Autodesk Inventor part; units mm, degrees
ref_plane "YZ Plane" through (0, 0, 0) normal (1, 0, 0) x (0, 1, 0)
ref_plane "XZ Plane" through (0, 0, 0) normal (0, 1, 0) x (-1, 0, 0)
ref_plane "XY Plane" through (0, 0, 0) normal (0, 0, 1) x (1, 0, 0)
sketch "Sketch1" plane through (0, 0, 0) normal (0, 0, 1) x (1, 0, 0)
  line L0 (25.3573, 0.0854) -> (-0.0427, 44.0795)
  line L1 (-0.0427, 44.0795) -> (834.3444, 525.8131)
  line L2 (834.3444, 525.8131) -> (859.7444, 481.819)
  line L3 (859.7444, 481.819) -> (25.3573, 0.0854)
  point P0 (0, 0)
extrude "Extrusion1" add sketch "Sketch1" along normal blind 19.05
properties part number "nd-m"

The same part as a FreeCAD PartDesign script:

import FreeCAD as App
import Part
import Sketcher
Q = App.Units.Quantity

doc = App.newDocument("Part")
params = doc.addObject("Spreadsheet::Sheet", "Params")
for row, (alias, value) in enumerate([
    ("sketch1_length", "2 in"),
    ("pad1_length", "0.75 in"),
], start=1):
    params.set(f"A{row}", alias)
    params.set(f"B{row}", "=" + value)
    params.setAlias(f"B{row}", alias)

body = doc.addObject("PartDesign::Body", "Body")

# Sketch on XY plane
sketch1 = body.newObject("Sketcher::SketchObject", "Sketch")
sketch1.AttachmentSupport = (doc.getObject("XY_Plane"), [""])
sketch1.MapMode = "FlatFace"
sketch1.addGeometry(Part.LineSegment(App.Vector(-0.0427, 44.0795, 0), App.Vector(25.3573, 0.0854, 0)), False)
sketch1.addGeometry(Part.LineSegment(App.Vector(25.3573, 0.0854, 0), App.Vector(859.7444, 481.819, 0)), False)
sketch1.addGeometry(Part.LineSegment(App.Vector(859.7444, 481.819, 0), App.Vector(834.3444, 525.8131, 0)), False)
sketch1.addGeometry(Part.LineSegment(App.Vector(834.3444, 525.8131, 0), App.Vector(-0.0427, 44.0795, 0)), False)
sketch1.addConstraint(Sketcher.Constraint("Coincident", 0, 2, 1, 1))
sketch1.addConstraint(Sketcher.Constraint("Coincident", 1, 2, 2, 1))
sketch1.addConstraint(Sketcher.Constraint("Coincident", 2, 2, 3, 1))
sketch1.addConstraint(Sketcher.Constraint("Coincident", 3, 2, 0, 1))
sketch1.addConstraint(Sketcher.Constraint("Perpendicular", 0, 1))
sketch1.addConstraint(Sketcher.Constraint("Perpendicular", 1, 2))
sketch1.addConstraint(Sketcher.Constraint("Perpendicular", 2, 3))
sketch1.addConstraint(Sketcher.Constraint("Distance", 0, Q("2 in")))
sketch1.addConstraint(Sketcher.Constraint("Angle", 0, Q("-60 deg")))
sketch1.addConstraint(Sketcher.Constraint("DistanceX", -1, 1, 1, 2, Q("33.8482 in")))
sketch1.addConstraint(Sketcher.Constraint("DistanceY", -1, 1, 2, 2, Q("20.7013 in")))
sketch1.addConstraint(Sketcher.Constraint("DistanceY", 0, 2, 1, 2, Q("18.9659 in")))
sketch1.setExpression("Constraints[7]", "Params.sketch1_length")
pad1 = body.newObject("PartDesign::Pad", "Pad")
pad1.Profile = sketch1
pad1.setExpression("Length", "Params.pad1_length")

doc.recompute()
